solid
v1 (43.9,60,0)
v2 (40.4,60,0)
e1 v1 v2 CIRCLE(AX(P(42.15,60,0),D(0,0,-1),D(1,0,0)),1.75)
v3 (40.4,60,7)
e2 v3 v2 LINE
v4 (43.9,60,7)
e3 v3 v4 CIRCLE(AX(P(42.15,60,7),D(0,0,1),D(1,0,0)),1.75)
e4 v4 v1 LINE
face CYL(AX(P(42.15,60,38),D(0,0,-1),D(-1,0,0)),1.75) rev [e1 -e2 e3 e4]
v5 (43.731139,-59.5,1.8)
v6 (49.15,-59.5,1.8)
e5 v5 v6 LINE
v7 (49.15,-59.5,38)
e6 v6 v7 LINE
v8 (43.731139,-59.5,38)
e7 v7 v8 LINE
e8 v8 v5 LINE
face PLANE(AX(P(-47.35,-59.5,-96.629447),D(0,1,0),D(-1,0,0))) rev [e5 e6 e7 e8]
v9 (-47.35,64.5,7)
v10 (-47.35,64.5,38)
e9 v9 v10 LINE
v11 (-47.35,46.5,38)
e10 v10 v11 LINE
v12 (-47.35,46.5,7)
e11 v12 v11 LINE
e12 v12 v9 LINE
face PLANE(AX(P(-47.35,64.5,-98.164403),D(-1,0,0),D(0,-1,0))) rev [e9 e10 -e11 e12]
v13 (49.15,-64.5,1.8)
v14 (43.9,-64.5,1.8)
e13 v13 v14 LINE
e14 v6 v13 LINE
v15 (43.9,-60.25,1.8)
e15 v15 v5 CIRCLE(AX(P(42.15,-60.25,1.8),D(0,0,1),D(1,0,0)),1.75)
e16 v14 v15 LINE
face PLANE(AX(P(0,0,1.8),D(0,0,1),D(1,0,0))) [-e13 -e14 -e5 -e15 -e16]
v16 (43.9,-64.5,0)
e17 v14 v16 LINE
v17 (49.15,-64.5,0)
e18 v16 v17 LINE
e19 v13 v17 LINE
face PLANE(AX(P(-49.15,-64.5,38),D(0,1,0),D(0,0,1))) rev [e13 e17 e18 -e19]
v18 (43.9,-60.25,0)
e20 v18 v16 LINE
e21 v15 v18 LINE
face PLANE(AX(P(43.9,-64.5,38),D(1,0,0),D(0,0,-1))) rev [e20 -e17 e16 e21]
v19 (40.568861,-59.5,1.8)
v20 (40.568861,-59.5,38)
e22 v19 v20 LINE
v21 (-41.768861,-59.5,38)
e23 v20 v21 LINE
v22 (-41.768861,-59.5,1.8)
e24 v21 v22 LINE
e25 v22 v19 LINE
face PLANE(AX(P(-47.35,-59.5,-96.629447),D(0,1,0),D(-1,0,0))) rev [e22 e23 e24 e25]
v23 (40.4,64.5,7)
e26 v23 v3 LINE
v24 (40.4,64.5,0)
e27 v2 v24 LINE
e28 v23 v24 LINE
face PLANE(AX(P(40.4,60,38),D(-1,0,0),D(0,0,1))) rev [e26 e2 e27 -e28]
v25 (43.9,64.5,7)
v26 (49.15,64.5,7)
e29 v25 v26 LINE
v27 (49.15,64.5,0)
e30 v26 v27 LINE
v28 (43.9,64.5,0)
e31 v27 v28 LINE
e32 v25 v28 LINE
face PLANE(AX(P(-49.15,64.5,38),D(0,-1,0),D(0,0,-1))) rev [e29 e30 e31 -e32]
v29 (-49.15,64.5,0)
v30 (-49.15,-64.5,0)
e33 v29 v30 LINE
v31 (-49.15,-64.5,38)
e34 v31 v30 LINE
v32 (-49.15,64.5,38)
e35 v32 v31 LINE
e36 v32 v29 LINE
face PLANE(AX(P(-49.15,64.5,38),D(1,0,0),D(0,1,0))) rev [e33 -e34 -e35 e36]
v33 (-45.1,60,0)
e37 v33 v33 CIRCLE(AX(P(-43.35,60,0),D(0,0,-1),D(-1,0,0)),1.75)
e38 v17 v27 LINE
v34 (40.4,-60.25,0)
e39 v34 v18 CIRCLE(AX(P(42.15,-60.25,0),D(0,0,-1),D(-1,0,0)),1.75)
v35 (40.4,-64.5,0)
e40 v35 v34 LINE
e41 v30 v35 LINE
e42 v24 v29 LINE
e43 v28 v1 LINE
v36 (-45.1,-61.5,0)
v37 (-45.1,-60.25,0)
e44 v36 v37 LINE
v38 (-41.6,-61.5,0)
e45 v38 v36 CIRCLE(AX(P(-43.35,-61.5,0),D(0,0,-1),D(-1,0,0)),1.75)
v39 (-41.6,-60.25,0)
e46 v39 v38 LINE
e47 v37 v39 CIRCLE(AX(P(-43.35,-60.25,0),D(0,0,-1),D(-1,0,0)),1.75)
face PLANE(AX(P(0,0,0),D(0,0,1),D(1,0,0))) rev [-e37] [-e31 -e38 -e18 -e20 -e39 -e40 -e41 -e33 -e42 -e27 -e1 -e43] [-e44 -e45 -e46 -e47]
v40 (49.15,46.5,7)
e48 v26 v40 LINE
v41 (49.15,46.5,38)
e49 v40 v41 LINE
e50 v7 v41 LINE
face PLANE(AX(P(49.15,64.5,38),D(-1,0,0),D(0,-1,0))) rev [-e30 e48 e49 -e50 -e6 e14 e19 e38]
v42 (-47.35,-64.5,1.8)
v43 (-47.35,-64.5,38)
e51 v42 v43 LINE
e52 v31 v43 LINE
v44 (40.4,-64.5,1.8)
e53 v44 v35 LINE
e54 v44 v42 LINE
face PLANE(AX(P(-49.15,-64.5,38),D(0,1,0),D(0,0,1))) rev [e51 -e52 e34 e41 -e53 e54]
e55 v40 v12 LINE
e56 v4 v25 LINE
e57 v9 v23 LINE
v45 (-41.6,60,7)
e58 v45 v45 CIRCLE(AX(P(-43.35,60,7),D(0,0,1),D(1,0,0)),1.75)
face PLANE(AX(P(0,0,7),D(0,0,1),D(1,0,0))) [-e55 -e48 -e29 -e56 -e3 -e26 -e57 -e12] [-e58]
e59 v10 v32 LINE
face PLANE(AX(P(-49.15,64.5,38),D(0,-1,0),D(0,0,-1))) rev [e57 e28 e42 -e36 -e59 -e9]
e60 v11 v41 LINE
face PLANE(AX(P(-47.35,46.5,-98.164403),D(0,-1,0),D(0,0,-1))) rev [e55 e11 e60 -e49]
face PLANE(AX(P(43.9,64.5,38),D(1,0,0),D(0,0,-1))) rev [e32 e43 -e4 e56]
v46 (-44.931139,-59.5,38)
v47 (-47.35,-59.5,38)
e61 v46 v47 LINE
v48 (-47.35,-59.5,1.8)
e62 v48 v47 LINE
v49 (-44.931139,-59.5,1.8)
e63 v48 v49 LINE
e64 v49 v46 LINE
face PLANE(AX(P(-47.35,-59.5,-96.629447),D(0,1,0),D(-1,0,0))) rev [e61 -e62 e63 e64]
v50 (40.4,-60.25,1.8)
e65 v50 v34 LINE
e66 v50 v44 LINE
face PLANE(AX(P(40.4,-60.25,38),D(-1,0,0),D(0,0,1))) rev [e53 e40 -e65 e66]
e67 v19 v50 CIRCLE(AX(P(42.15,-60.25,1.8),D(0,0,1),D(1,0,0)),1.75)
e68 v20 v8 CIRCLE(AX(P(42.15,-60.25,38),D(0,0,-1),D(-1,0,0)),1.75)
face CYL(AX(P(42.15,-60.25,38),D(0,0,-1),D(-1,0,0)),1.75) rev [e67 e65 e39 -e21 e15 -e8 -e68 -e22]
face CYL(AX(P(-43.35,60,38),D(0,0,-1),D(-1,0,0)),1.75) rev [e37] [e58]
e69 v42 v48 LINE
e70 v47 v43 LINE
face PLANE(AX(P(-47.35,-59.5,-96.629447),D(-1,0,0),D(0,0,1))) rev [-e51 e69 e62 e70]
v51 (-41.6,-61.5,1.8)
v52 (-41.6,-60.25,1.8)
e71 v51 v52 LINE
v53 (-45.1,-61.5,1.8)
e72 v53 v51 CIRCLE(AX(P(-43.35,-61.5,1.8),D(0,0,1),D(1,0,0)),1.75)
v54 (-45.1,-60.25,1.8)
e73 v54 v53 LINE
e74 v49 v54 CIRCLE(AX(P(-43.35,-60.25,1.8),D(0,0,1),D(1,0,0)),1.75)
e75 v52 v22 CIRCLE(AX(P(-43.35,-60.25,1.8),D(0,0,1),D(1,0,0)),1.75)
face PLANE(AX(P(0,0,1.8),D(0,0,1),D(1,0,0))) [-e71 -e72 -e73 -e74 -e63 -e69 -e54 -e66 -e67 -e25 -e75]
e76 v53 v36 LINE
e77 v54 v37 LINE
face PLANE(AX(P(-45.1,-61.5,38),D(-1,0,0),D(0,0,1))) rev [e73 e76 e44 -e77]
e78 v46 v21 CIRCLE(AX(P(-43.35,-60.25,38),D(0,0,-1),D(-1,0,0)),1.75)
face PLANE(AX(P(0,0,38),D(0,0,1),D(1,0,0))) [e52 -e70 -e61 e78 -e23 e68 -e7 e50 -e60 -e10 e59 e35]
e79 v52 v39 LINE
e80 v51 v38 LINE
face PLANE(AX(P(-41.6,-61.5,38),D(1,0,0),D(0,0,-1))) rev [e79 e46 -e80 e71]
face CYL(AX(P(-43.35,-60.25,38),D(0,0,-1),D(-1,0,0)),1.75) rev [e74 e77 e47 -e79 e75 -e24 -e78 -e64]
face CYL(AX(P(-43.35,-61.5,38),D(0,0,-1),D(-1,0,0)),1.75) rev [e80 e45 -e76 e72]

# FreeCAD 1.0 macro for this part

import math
import FreeCAD as App
import Part
import Sketcher

V = App.Vector
Q = App.Units.Quantity


def add_polygon(sketch, points):
    """Adds a closed chain of lines whose ends are joined by coincident constraints."""
    first, n = sketch.GeometryCount, len(points)
    for a, b in zip(points, points[1:] + points[:1]):
        sketch.addGeometry(Part.LineSegment(App.Vector(*a, 0), App.Vector(*b, 0)), False)
    for i in range(n):
        sketch.addConstraint(Sketcher.Constraint("Coincident", first + i, 2, first + (i + 1) % n, 1))

doc = App.newDocument("Part")
body = doc.addObject("PartDesign::Body", "Body")

sketch1 = doc.addObject("Sketcher::SketchObject", "Sketch")
body.addObject(sketch1)
sketch1.AttachmentSupport = (doc.XY_Plane, [""])
sketch1.MapMode = "FlatFace"
add_polygon(sketch1, [(-49, 64), (-49, -64), (49, -64), (49, 64)])
sketch1.addConstraint(Sketcher.Constraint("Vertical", 0))
sketch1.addConstraint(Sketcher.Constraint("Horizontal", 1))
sketch1.addConstraint(Sketcher.Constraint("Vertical", 2))
sketch1.addConstraint(Sketcher.Constraint("Horizontal", 3))
sketch1.addConstraint(Sketcher.Constraint("Symmetric", 0, 2, 2, 2, -1, 1))
sketch1.addConstraint(Sketcher.Constraint("DistanceY", 0, 2, 0, 1, Q("129 mm")))
sketch1.addConstraint(Sketcher.Constraint("DistanceX", 1, 1, 1, 2, Q("98.3 mm")))
pad1 = doc.addObject("PartDesign::Pad", "Pad")
body.addObject(pad1)
pad1.Profile = sketch1
pad1.Length = 38

sketch2 = doc.addObject("Sketcher::SketchObject", "Sketch001")
body.addObject(sketch2)
sketch2.AttachmentSupport = (doc.XY_Plane, [""])
sketch2.MapMode = "FlatFace"
sketch2.AttachmentOffset = App.Placement(V(0, 0, 38), App.Rotation())
add_polygon(sketch2, [(-47, 64), (-47, 46), (49, 46), (49, 64)])
sketch2.addConstraint(Sketcher.Constraint("Vertical", 0))
sketch2.addConstraint(Sketcher.Constraint("Horizontal", 1))
sketch2.addConstraint(Sketcher.Constraint("Vertical", 2))
sketch2.addConstraint(Sketcher.Constraint("Horizontal", 3))
sketch2.addConstraint(Sketcher.Constraint("DistanceY", 0, 2, 0, 1, Q("18 mm")))
sketch2.addConstraint(Sketcher.Constraint("DistanceX", 1, 1, 1, 2, Q("96.5 mm")))
sketch2.addConstraint(Sketcher.Constraint("DistanceY", -1, 1, 0, 2, Q("46.5 mm")))
sketch2.addConstraint(Sketcher.Constraint("DistanceX", 0, 2, -1, 1, Q("47.35 mm")))
pocket1 = doc.addObject("PartDesign::Pocket", "Pocket")
body.addObject(pocket1)
pocket1.Profile = sketch2
pocket1.Length = 31

sketch3 = doc.addObject("Sketcher::SketchObject", "Sketch002")
body.addObject(sketch3)
sketch3.AttachmentSupport = (doc.XY_Plane, [""])
sketch3.MapMode = "FlatFace"
sketch3.AttachmentOffset = App.Placement(V(0, 0, 38), App.Rotation())
add_polygon(sketch3, [(-47, -60), (-47, -64), (49, -64), (49, -60)])
sketch3.addConstraint(Sketcher.Constraint("Vertical", 0))
sketch3.addConstraint(Sketcher.Constraint("Horizontal", 1))
sketch3.addConstraint(Sketcher.Constraint("Vertical", 2))
sketch3.addConstraint(Sketcher.Constraint("Horizontal", 3))
sketch3.addConstraint(Sketcher.Constraint("DistanceY", 0, 2, 0, 1, Q("5 mm")))
sketch3.addConstraint(Sketcher.Constraint("DistanceX", 1, 1, 1, 2, Q("96.5 mm")))
sketch3.addConstraint(Sketcher.Constraint("DistanceY", 0, 2, -1, 1, Q("64.5 mm")))
sketch3.addConstraint(Sketcher.Constraint("DistanceX", 0, 2, -1, 1, Q("47.35 mm")))
pocket2 = doc.addObject("PartDesign::Pocket", "Pocket001")
body.addObject(pocket2)
pocket2.Profile = sketch3
pocket2.Length = 36.2

sketch4 = doc.addObject("Sketcher::SketchObject", "Sketch003")
body.addObject(sketch4)
sketch4.AttachmentSupport = (doc.XY_Plane, [""])
sketch4.MapMode = "FlatFace"
sketch4.addGeometry(Part.Circle(V(-43.4, 60, 0), V(0, 0, 1), 1.8), False)
sketch4.addGeometry(Part.LineSegment(V(40.4, 60, 0), V(40.4, 64.5, 0)), False)
sketch4.addGeometry(Part.LineSegment(V(40.4, 64.5, 0), V(43.9, 64.5, 0)), False)
sketch4.addGeometry(Part.LineSegment(V(43.9, 64.5, 0), V(43.9, 60, 0)), False)
sketch4.addGeometry(Part.ArcOfCircle(Part.Circle(V(42.1, 60, 0), V(0, 0, 1), 1.8), math.radians(180), math.radians(360)), False)
sketch4.addGeometry(Part.LineSegment(V(40.4, -64.5, 0), V(40.4, -60.2, 0)), False)
sketch4.addGeometry(Part.ArcOfCircle(Part.Circle(V(42.1, -60.2, 0), V(0, 0, 1), 1.8), math.radians(0), math.radians(180)), False)
sketch4.addGeometry(Part.LineSegment(V(43.9, -60.2, 0), V(43.9, -64.5, 0)), False)
sketch4.addGeometry(Part.LineSegment(V(43.9, -64.5, 0), V(40.4, -64.5, 0)), False)
sketch4.addGeometry(Part.LineSegment(V(-41.6, -60.2, 0), V(-41.6, -61.5, 0)), False)
sketch4.addGeometry(Part.ArcOfCircle(Part.Circle(V(-43.4, -61.5, 0), V(0, 0, 1), 1.8), math.radians(180), math.radians(360)), False)
sketch4.addGeometry(Part.LineSegment(V(-45.1, -61.5, 0), V(-45.1, -60.2, 0)), False)
sketch4.addGeometry(Part.ArcOfCircle(Part.Circle(V(-43.4, -60.2, 0), V(0, 0, 1), 1.8), math.radians(0), math.radians(180)), False)
sketch4.addConstraint(Sketcher.Constraint("Coincident", 1, 2, 2, 1))
sketch4.addConstraint(Sketcher.Constraint("Coincident", 2, 2, 3, 1))
sketch4.addConstraint(Sketcher.Constraint("Tangent", 3, 2, 4, 2))
sketch4.addConstraint(Sketcher.Constraint("Tangent", 4, 1, 1, 1))
sketch4.addConstraint(Sketcher.Constraint("Tangent", 5, 2, 6, 2))
sketch4.addConstraint(Sketcher.Constraint("Tangent", 6, 1, 7, 1))
sketch4.addConstraint(Sketcher.Constraint("Coincident", 7, 2, 8, 1))
sketch4.addConstraint(Sketcher.Constraint("Coincident", 8, 2, 5, 1))
sketch4.addConstraint(Sketcher.Constraint("Tangent", 9, 2, 10, 2))
sketch4.addConstraint(Sketcher.Constraint("Tangent", 10, 1, 11, 1))
sketch4.addConstraint(Sketcher.Constraint("Tangent", 11, 2, 12, 2))
sketch4.addConstraint(Sketcher.Constraint("Tangent", 12, 1, 9, 1))
sketch4.addConstraint(Sketcher.Constraint("Vertical", 1))
sketch4.addConstraint(Sketcher.Constraint("Horizontal", 2))
sketch4.addConstraint(Sketcher.Constraint("Vertical", 3))
sketch4.addConstraint(Sketcher.Constraint("Vertical", 5))
sketch4.addConstraint(Sketcher.Constraint("Vertical", 7))
sketch4.addConstraint(Sketcher.Constraint("Horizontal", 8))
sketch4.addConstraint(Sketcher.Constraint("Vertical", 9))
sketch4.addConstraint(Sketcher.Constraint("Vertical", 11))
sketch4.addConstraint(Sketcher.Constraint("Equal", 0, 4))
sketch4.addConstraint(Sketcher.Constraint("Equal", 4, 6))
sketch4.addConstraint(Sketcher.Constraint("Equal", 6, 10))
sketch4.addConstraint(Sketcher.Constraint("Symmetric", 2, 2, 7, 2, -1))
sketch4.addConstraint(Sketcher.Constraint("Horizontal", 0, 3, 4, 3))
sketch4.addConstraint(Sketcher.Constraint("Horizontal", 6, 3, 12, 3))
sketch4.addConstraint(Sketcher.Constraint("Vertical", 0, 3, 10, 3))
sketch4.addConstraint(Sketcher.Constraint("Diameter", 0, Q("3.5 mm")))
sketch4.addConstraint(Sketcher.Constraint("DistanceY", 1, 1, 1, 2, Q("4.5 mm")))
sketch4.addConstraint(Sketcher.Constraint("DistanceY", -1, 1, 0, 3, Q("60 mm")))
sketch4.addConstraint(Sketcher.Constraint("DistanceY", 10, 3, 1, 2, Q("126 mm")))
sketch4.addConstraint(Sketcher.Constraint("DistanceX", 9, 2, 5, 2, Q("82 mm")))
sketch4.addConstraint(Sketcher.Constraint("DistanceY", 5, 1, 5, 2, Q("4.25 mm")))
sketch4.addConstraint(Sketcher.Constraint("DistanceX", -1, 1, 1, 2, Q("40.4 mm")))
pocket3 = doc.addObject("PartDesign::Pocket", "Pocket002")
body.addObject(pocket3)
pocket3.Profile = sketch4
pocket3.Type = "ThroughAll"
pocket3.Reversed = True

doc.recompute()
